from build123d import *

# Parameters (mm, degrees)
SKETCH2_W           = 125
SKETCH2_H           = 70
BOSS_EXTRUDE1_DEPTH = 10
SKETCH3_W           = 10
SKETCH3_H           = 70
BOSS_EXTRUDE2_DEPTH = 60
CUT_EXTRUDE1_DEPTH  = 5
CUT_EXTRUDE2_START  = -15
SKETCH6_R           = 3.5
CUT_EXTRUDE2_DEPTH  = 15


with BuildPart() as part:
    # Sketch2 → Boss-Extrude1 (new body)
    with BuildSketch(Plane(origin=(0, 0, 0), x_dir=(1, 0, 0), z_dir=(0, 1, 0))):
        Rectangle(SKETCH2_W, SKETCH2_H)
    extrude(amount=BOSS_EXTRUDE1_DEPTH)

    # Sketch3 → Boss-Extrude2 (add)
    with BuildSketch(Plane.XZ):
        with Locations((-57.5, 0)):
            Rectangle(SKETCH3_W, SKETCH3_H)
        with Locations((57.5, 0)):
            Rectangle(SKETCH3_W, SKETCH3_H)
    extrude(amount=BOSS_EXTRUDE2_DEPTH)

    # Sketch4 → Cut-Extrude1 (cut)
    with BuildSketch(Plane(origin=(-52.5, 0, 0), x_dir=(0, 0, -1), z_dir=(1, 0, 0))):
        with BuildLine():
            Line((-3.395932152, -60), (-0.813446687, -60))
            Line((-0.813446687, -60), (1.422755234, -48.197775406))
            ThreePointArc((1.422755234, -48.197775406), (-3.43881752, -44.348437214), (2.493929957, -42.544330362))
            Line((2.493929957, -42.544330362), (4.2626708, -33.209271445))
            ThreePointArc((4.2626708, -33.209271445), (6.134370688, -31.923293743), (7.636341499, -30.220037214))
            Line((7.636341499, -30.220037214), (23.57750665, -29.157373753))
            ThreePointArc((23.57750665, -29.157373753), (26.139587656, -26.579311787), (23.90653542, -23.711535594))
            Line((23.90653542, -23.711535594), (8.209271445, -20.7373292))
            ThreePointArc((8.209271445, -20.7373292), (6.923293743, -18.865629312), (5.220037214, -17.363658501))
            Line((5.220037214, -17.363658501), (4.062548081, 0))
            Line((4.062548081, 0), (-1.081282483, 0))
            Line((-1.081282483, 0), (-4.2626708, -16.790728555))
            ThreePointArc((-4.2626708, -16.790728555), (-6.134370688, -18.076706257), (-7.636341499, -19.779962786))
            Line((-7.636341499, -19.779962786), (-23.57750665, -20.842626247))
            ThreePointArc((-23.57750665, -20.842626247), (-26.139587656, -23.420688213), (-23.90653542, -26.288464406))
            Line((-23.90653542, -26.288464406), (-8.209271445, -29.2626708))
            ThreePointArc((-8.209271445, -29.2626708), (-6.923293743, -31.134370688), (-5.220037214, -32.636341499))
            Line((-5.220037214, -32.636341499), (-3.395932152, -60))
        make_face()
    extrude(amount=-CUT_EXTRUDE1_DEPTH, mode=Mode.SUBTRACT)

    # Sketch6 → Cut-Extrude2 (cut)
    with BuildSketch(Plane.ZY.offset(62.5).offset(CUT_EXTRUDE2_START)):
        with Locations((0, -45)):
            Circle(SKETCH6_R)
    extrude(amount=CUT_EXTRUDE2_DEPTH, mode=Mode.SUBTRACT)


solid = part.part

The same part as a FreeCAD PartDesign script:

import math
import FreeCAD as App
import Part
import Sketcher

V = App.Vector

doc = App.newDocument("Part")
body = doc.addObject("PartDesign::Body", "Body")

# Sketch on XZ plane
sketch1 = body.newObject("Sketcher::SketchObject", "Sketch")
sketch1.AttachmentSupport = (doc.getObject("XZ_Plane"), [""])
sketch1.MapMode = "FlatFace"
sketch1.addGeometry(Part.LineSegment(V(-62.5, -35, 0), V(-62.5, 35, 0)), False)
sketch1.addGeometry(Part.LineSegment(V(-62.5, 35, 0), V(62.5, 35, 0)), False)
sketch1.addGeometry(Part.LineSegment(V(62.5, 35, 0), V(62.5, -35, 0)), False)
sketch1.addGeometry(Part.LineSegment(V(62.5, -35, 0), V(-62.5, -35, 0)), False)
sketch1.addConstraint(Sketcher.Constraint("Coincident", 0, 2, 1, 1))
sketch1.addConstraint(Sketcher.Constraint("Coincident", 1, 2, 2, 1))
sketch1.addConstraint(Sketcher.Constraint("Coincident", 2, 2, 3, 1))
sketch1.addConstraint(Sketcher.Constraint("Coincident", 3, 2, 0, 1))
sketch1.addConstraint(Sketcher.Constraint("Vertical", 0))
sketch1.addConstraint(Sketcher.Constraint("Horizontal", 1))
sketch1.addConstraint(Sketcher.Constraint("Vertical", 2))
sketch1.addConstraint(Sketcher.Constraint("Horizontal", 3))
sketch1.addConstraint(Sketcher.Constraint("Symmetric", 0, 2, 2, 2, -1, 1))
sketch1.addConstraint(Sketcher.Constraint("DistanceX", 1, 1, 1, 2, 125.0))
sketch1.addConstraint(Sketcher.Constraint("DistanceY", 0, 1, 0, 2, 70.0))
pad1 = body.newObject("PartDesign::Pad", "Pad")
pad1.Profile = sketch1
pad1.Length = 10
pad1.Reversed = True

# Sketch on XZ plane
sketch2 = body.newObject("Sketcher::SketchObject", "Sketch001")
sketch2.AttachmentSupport = (doc.getObject("XZ_Plane"), [""])
sketch2.MapMode = "FlatFace"
sketch2.addGeometry(Part.LineSegment(V(-62.5, 35, 0), V(-62.5, -35, 0)), False)
sketch2.addGeometry(Part.LineSegment(V(-62.5, -35, 0), V(-52.5, -35, 0)), False)
sketch2.addGeometry(Part.LineSegment(V(-52.5, -35, 0), V(-52.5, 35, 0)), False)
sketch2.addGeometry(Part.LineSegment(V(-52.5, 35, 0), V(-62.5, 35, 0)), False)
sketch2.addGeometry(Part.LineSegment(V(52.5, 35, 0), V(52.5, -35, 0)), False)
sketch2.addGeometry(Part.LineSegment(V(52.5, -35, 0), V(62.5, -35, 0)), False)
sketch2.addGeometry(Part.LineSegment(V(62.5, -35, 0), V(62.5, 35, 0)), False)
sketch2.addGeometry(Part.LineSegment(V(62.5, 35, 0), V(52.5, 35, 0)), False)
sketch2.addConstraint(Sketcher.Constraint("Coincident", 0, 2, 1, 1))
sketch2.addConstraint(Sketcher.Constraint("Coincident", 1, 2, 2, 1))
sketch2.addConstraint(Sketcher.Constraint("Coincident", 2, 2, 3, 1))
sketch2.addConstraint(Sketcher.Constraint("Coincident", 3, 2, 0, 1))
sketch2.addConstraint(Sketcher.Constraint("Coincident", 4, 2, 5, 1))
sketch2.addConstraint(Sketcher.Constraint("Coincident", 5, 2, 6, 1))
sketch2.addConstraint(Sketcher.Constraint("Coincident", 6, 2, 7, 1))
sketch2.addConstraint(Sketcher.Constraint("Coincident", 7, 2, 4, 1))
sketch2.addConstraint(Sketcher.Constraint("Vertical", 0))
sketch2.addConstraint(Sketcher.Constraint("Horizontal", 1))
sketch2.addConstraint(Sketcher.Constraint("Vertical", 2))
sketch2.addConstraint(Sketcher.Constraint("Horizontal", 3))
sketch2.addConstraint(Sketcher.Constraint("Vertical", 4))
sketch2.addConstraint(Sketcher.Constraint("Horizontal", 5))
sketch2.addConstraint(Sketcher.Constraint("Vertical", 6))
sketch2.addConstraint(Sketcher.Constraint("Horizontal", 7))
sketch2.addConstraint(Sketcher.Constraint("Symmetric", 2, 2, 4, 2, -1, 1))
sketch2.addConstraint(Sketcher.Constraint("Symmetric", 0, 2, 6, 2, -1, 1))
sketch2.addConstraint(Sketcher.Constraint("Horizontal", 1, 2, 4, 2))
sketch2.addConstraint(Sketcher.Constraint("DistanceX", 1, 1, 1, 2, 10.0))
sketch2.addConstraint(Sketcher.Constraint("DistanceY", 0, 2, 0, 1, 70.0))
sketch2.addConstraint(Sketcher.Constraint("DistanceX", 1, 2, 4, 2, 105.0))
pad2 = body.newObject("PartDesign::Pad", "Pad001")
pad2.Profile = sketch2
pad2.Length = 60

# Sketch on YZ plane
sketch3 = body.newObject("Sketcher::SketchObject", "Sketch002")
sketch3.AttachmentSupport = (doc.getObject("YZ_Plane"), [""])
sketch3.MapMode = "FlatFace"
sketch3.AttachmentOffset = App.Placement(V(0, 0, -52.5), App.Rotation())
sketch3.addGeometry(Part.LineSegment(V(-60, 3.395932, 0), V(-60, 0.813447, 0)), False)
sketch3.addGeometry(Part.LineSegment(V(-60, 0.813447, 0), V(-48.197775, -1.422755, 0)), False)
sketch3.addGeometry(Part.ArcOfCircle(Part.Circle(V(-45, 0, 0), V(0, 0, 1), 3.5), math.radians(-45.442887), math.radians(203.985253)), False)
sketch3.addGeometry(Part.LineSegment(V(-42.54433, -2.49393, 0), V(-33.209271, -4.262671, 0)), False)
sketch3.addGeometry(Part.ArcOfCircle(Part.Circle(V(-25, 0, 0), V(0, 0, 1), 9.25), math.radians(-152.559368), math.radians(-124.355664)), False)
sketch3.addGeometry(Part.LineSegment(V(-30.220037, -7.636341, 0), V(-29.157374, -23.577507, 0)), False)
sketch3.addGeometry(Part.ArcOfCircle(Part.Circle(V(-26.413464, -23.394593, 0), V(0, 0, 1), 2.75), math.radians(-176.186215), math.radians(-10.728817)), False)
sketch3.addGeometry(Part.LineSegment(V(-23.711536, -23.906535, 0), V(-20.737329, -8.209271, 0)), False)
sketch3.addGeometry(Part.ArcOfCircle(Part.Circle(V(-25, 0, 0), V(0, 0, 1), 9.25), math.radians(-62.559368), math.radians(-34.355664)), False)
sketch3.addGeometry(Part.LineSegment(V(-17.363659, -5.220037, 0), V(0, -4.062548, 0)), False)
sketch3.addGeometry(Part.LineSegment(V(0, -4.062548, 0), V(0, 1.081282, 0)), False)
sketch3.addGeometry(Part.LineSegment(V(0, 1.081282, 0), V(-16.790729, 4.262671, 0)), False)
sketch3.addGeometry(Part.ArcOfCircle(Part.Circle(V(-25, 0, 0), V(0, 0, 1), 9.25), math.radians(27.440632), math.radians(55.644336)), False)
sketch3.addGeometry(Part.LineSegment(V(-19.779963, 7.636341, 0), V(-20.842626, 23.577507, 0)), False)
sketch3.addGeometry(Part.ArcOfCircle(Part.Circle(V(-23.586536, 23.394593, 0), V(0, 0, 1), 2.75), math.radians(3.813785), math.radians(169.271183)), False)
sketch3.addGeometry(Part.LineSegment(V(-26.288464, 23.906535, 0), V(-29.262671, 8.209271, 0)), False)
sketch3.addGeometry(Part.ArcOfCircle(Part.Circle(V(-25, 0, 0), V(0, 0, 1), 9.25), math.radians(117.440632), math.radians(145.644336)), False)
sketch3.addGeometry(Part.LineSegment(V(-32.636341, 5.220037, 0), V(-60, 3.395932, 0)), False)
sketch3.addConstraint(Sketcher.Constraint("Coincident", 0, 2, 1, 1))
sketch3.addConstraint(Sketcher.Constraint("Coincident", 1, 2, 2, 2))
sketch3.addConstraint(Sketcher.Constraint("Coincident", 2, 1, 3, 1))
sketch3.addConstraint(Sketcher.Constraint("Coincident", 3, 2, 4, 1))
sketch3.addConstraint(Sketcher.Constraint("Coincident", 4, 2, 5, 1))
sketch3.addConstraint(Sketcher.Constraint("Coincident", 5, 2, 6, 1))
sketch3.addConstraint(Sketcher.Constraint("Coincident", 6, 2, 7, 1))
sketch3.addConstraint(Sketcher.Constraint("Coincident", 7, 2, 8, 1))
sketch3.addConstraint(Sketcher.Constraint("Coincident", 8, 2, 9, 1))
sketch3.addConstraint(Sketcher.Constraint("Coincident", 9, 2, 10, 1))
sketch3.addConstraint(Sketcher.Constraint("Coincident", 10, 2, 11, 1))
sketch3.addConstraint(Sketcher.Constraint("Coincident", 11, 2, 12, 1))
sketch3.addConstraint(Sketcher.Constraint("Coincident", 12, 2, 13, 1))
sketch3.addConstraint(Sketcher.Constraint("Coincident", 13, 2, 14, 1))
sketch3.addConstraint(Sketcher.Constraint("Coincident", 14, 2, 15, 1))
sketch3.addConstraint(Sketcher.Constraint("Coincident", 15, 2, 16, 1))
sketch3.addConstraint(Sketcher.Constraint("Coincident", 16, 2, 17, 1))
sketch3.addConstraint(Sketcher.Constraint("Coincident", 17, 2, 0, 1))
sketch3.addConstraint(Sketcher.Constraint("Vertical", 0))
sketch3.addConstraint(Sketcher.Constraint("Vertical", 10))
sketch3.addConstraint(Sketcher.Constraint("Coincident", 8, 3, 4, 3))
sketch3.addConstraint(Sketcher.Constraint("Coincident", 12, 3, 4, 3))
sketch3.addConstraint(Sketcher.Constraint("Coincident", 16, 3, 4, 3))
sketch3.addConstraint(Sketcher.Constraint("PointOnObject", 2, 3, -1))
sketch3.addConstraint(Sketcher.Constraint("PointOnObject", 4, 3, -1))
sketch3.addConstraint(Sketcher.Constraint("PointOnObject", 9, 2, -2))
sketch3.addConstraint(Sketcher.Constraint("Radius", 2, 3.5))
sketch3.addConstraint(Sketcher.Constraint("Radius", 4, 9.25))
sketch3.addConstraint(Sketcher.Constraint("Radius", 6, 2.75))
sketch3.addConstraint(Sketcher.Constraint("Radius", 8, 9.25))
sketch3.addConstraint(Sketcher.Constraint("Radius", 12, 9.25))
sketch3.addConstraint(Sketcher.Constraint("Radius", 14, 2.75))
sketch3.addConstraint(Sketcher.Constraint("Radius", 16, 9.25))
sketch3.addConstraint(Sketcher.Constraint("DistanceX", 2, 3, -1, 1, 45.0))
sketch3.addConstraint(Sketcher.Constraint("DistanceX", 4, 3, -1, 1, 25.0))
sketch3.addConstraint(Sketcher.Constraint("DistanceX", 0, 2, -1, 1, 60.0))
sketch3.addConstraint(Sketcher.Constraint("DistanceY", 10, 1, 10, 2, 5.143831))
sketch3.addConstraint(Sketcher.Constraint("DistanceY", 1, 2, 0, 2, 2.236202))
sketch3.addConstraint(Sketcher.Constraint("DistanceX", 4, 2, 6, 2, 6.508502))
sketch3.addConstraint(Sketcher.Constraint("DistanceX", 14, 2, 12, 2, 6.508502))
sketch3.addConstraint(Sketcher.Constraint("Distance", 17, 27.42439))
sketch3.addConstraint(Sketcher.Constraint("DistanceY", 0, 2, 0, 1, 2.582485))
sketch3.addConstraint(Sketcher.Constraint("DistanceX", 2, 1, -1, 1, 42.54433))
sketch3.addConstraint(Sketcher.Constraint("DistanceX", 3, 2, -1, 1, 33.209271))
sketch3.addConstraint(Sketcher.Constraint("DistanceY", 4, 2, -1, 1, 7.636341))
sketch3.addConstraint(Sketcher.Constraint("DistanceX", 7, 2, -1, 1, 20.737329))
sketch3.addConstraint(Sketcher.Constraint("DistanceX", 8, 2, -1, 1, 17.363659))
sketch3.addConstraint(Sketcher.Constraint("DistanceY", 9, 2, -1, 1, 4.062548))
sketch3.addConstraint(Sketcher.Constraint("DistanceX", 11, 2, -1, 1, 16.790729))
sketch3.addConstraint(Sketcher.Constraint("DistanceY", -1, 1, 12, 2, 7.636341))
sketch3.addConstraint(Sketcher.Constraint("DistanceX", 15, 2, -1, 1, 29.262671))
sketch3.addConstraint(Sketcher.Constraint("DistanceX", 16, 2, -1, 1, 32.636341))
sketch3.addConstraint(Sketcher.Constraint("DistanceX", 5, 2, 6, 3, 2.74391))
sketch3.addConstraint(Sketcher.Constraint("DistanceX", 6, 3, 6, 2, 2.701928))
sketch3.addConstraint(Sketcher.Constraint("DistanceX", 14, 3, 13, 2, 2.74391))
sketch3.addConstraint(Sketcher.Constraint("DistanceX", 14, 2, 14, 3, 2.701928))
sketch3.addConstraint(Sketcher.Constraint("Distance", 5, 15.976545))
sketch3.addConstraint(Sketcher.Constraint("Distance", 13, 15.976545))
pocket1 = body.newObject("PartDesign::Pocket", "Pocket")
pocket1.Profile = sketch3
pocket1.Length = 5

# Sketch on YZ plane
sketch4 = body.newObject("Sketcher::SketchObject", "Sketch003")
sketch4.AttachmentSupport = (doc.getObject("YZ_Plane"), [""])
sketch4.MapMode = "FlatFace"
sketch4.AttachmentOffset = App.Placement(V(0, 0, -47.5), App.Rotation())
sketch4.addGeometry(Part.Circle(V(-45, 0, 0), V(0, 0, 1), 3.5), False)
sketch4.addConstraint(Sketcher.Constraint("PointOnObject", 0, 3, -1))
sketch4.addConstraint(Sketcher.Constraint("Diameter", 0, 7.0))
sketch4.addConstraint(Sketcher.Constraint("DistanceX", 0, 3, -1, 1, 45.0))
pocket2 = body.newObject("PartDesign::Pocket", "Pocket001")
pocket2.Profile = sketch4
pocket2.Length = 15

doc.recompute()
